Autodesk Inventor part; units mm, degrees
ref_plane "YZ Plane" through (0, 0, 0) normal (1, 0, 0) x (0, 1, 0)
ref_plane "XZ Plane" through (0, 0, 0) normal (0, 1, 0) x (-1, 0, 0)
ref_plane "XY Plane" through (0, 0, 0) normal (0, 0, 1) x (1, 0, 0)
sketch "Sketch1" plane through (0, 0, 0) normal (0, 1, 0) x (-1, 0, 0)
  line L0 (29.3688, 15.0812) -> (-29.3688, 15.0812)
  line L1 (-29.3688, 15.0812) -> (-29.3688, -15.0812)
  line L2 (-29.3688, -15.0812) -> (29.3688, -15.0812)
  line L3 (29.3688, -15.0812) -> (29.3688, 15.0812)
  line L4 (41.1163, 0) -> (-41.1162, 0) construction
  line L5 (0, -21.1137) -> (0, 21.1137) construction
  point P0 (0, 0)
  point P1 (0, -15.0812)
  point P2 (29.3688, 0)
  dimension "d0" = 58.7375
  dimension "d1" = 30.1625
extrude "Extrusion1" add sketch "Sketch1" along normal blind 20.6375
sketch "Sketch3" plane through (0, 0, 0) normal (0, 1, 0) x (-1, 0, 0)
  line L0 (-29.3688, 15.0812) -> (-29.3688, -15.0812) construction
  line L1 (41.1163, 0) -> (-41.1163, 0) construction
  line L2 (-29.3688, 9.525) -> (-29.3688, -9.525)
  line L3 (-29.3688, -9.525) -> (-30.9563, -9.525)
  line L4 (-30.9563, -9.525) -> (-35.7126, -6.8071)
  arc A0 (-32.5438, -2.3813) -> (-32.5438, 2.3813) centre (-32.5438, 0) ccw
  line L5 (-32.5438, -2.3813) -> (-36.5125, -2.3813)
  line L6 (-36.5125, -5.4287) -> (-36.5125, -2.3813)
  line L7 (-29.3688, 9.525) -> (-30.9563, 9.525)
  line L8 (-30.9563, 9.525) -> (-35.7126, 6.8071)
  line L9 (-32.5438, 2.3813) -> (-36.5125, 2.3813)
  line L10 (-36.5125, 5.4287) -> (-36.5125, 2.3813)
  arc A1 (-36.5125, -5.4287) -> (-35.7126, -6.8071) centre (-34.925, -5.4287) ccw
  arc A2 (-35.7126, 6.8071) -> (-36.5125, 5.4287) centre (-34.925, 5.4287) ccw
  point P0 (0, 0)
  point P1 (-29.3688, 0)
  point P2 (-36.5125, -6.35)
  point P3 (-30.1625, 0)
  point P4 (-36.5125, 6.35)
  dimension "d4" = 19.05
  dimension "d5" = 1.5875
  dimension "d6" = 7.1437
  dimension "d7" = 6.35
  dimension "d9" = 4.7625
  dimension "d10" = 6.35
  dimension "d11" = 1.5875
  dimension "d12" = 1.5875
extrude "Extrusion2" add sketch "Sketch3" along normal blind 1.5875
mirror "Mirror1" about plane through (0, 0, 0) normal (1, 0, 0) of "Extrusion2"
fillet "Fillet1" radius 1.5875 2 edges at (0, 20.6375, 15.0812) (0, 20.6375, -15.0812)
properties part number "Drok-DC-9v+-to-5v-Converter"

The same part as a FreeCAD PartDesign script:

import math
import FreeCAD as App
import Part
import Sketcher

V = App.Vector
Q = App.Units.Quantity


def edges_at(feature, points):
    """Names of the edges that pass closest to the given points."""
    edges = feature.Shape.Edges
    near = lambda p: min(range(len(edges)), key=lambda i: edges[i].distToShape(Part.Vertex(*p))[0])
    return sorted({f"Edge{near(p) + 1}" for p in points})


def add_polygon(sketch, points):
    """Adds a closed chain of lines whose ends are joined by coincident constraints."""
    first, n = sketch.GeometryCount, len(points)
    for a, b in zip(points, points[1:] + points[:1]):
        sketch.addGeometry(Part.LineSegment(App.Vector(*a, 0), App.Vector(*b, 0)), False)
    for i in range(n):
        sketch.addConstraint(Sketcher.Constraint("Coincident", first + i, 2, first + (i + 1) % n, 1))

doc = App.newDocument("Part")
body = doc.addObject("PartDesign::Body", "Body")

# Sketch on XZ plane
sketch1 = doc.addObject("Sketcher::SketchObject", "Sketch")
body.addObject(sketch1)
sketch1.AttachmentSupport = (doc.XZ_Plane, [""])
sketch1.MapMode = "FlatFace"
add_polygon(sketch1, [(-29, -15), (-29, 15), (29, 15), (29, -15)])  # lines 0-3
sketch1.addConstraint(Sketcher.Constraint("Vertical", 0))
sketch1.addConstraint(Sketcher.Constraint("Horizontal", 1))
sketch1.addConstraint(Sketcher.Constraint("Vertical", 2))
sketch1.addConstraint(Sketcher.Constraint("Horizontal", 3))
sketch1.addConstraint(Sketcher.Constraint("Symmetric", 0, 2, 2, 2, -1, 1))
sketch1.addConstraint(Sketcher.Constraint("DistanceX", 1, 1, 1, 2, Q("2.3125 in")))
sketch1.addConstraint(Sketcher.Constraint("DistanceY", 0, 1, 0, 2, Q("1.1875 in")))
pad1 = doc.addObject("PartDesign::Pad", "Pad")
body.addObject(pad1)
pad1.Profile = sketch1
pad1.Length = Q("0.8125 in")
pad1.Reversed = True

# Sketch on XZ plane
sketch2 = doc.addObject("Sketcher::SketchObject", "Sketch001")
body.addObject(sketch2)
sketch2.AttachmentSupport = (doc.XZ_Plane, [""])
sketch2.MapMode = "FlatFace"
sketch2.addGeometry(Part.LineSegment(V(29.4, -9.5, 0), V(29.4, 9.5, 0)), False)
sketch2.addGeometry(Part.LineSegment(V(29.4, 9.5, 0), V(31, 9.5, 0)), False)
sketch2.addGeometry(Part.LineSegment(V(31, 9.5, 0), V(35.7, 6.8, 0)), False)
sketch2.addGeometry(Part.ArcOfCircle(Part.Circle(V(34.9, 5.4, 0), V(0, 0, 1), 1.6), math.radians(0), math.radians(60)), False)
sketch2.addGeometry(Part.LineSegment(V(36.5, 5.4, 0), V(36.5, 2.4, 0)), False)
sketch2.addGeometry(Part.LineSegment(V(36.5, 2.4, 0), V(32.5, 2.4, 0)), False)
sketch2.addGeometry(Part.ArcOfCircle(Part.Circle(V(32.5, 0, 0), V(0, 0, 1), 2.4), math.radians(90), math.radians(270)), False)
sketch2.addGeometry(Part.LineSegment(V(32.5, -2.4, 0), V(36.5, -2.4, 0)), False)
sketch2.addGeometry(Part.LineSegment(V(36.5, -2.4, 0), V(36.5, -5.4, 0)), False)
sketch2.addGeometry(Part.ArcOfCircle(Part.Circle(V(34.9, -5.4, 0), V(0, 0, 1), 1.6), math.radians(-60), math.radians(0)), False)
sketch2.addGeometry(Part.LineSegment(V(35.7, -6.8, 0), V(31, -9.5, 0)), False)
sketch2.addGeometry(Part.LineSegment(V(31, -9.5, 0), V(29.4, -9.5, 0)), False)
sketch2.addConstraint(Sketcher.Constraint("Coincident", 0, 2, 1, 1))
sketch2.addConstraint(Sketcher.Constraint("Coincident", 1, 2, 2, 1))
sketch2.addConstraint(Sketcher.Constraint("Tangent", 2, 2, 3, 2))
sketch2.addConstraint(Sketcher.Constraint("Tangent", 3, 1, 4, 1))
sketch2.addConstraint(Sketcher.Constraint("Coincident", 4, 2, 5, 1))
sketch2.addConstraint(Sketcher.Constraint("Tangent", 5, 2, 6, 1))
sketch2.addConstraint(Sketcher.Constraint("Tangent", 6, 2, 7, 1))
sketch2.addConstraint(Sketcher.Constraint("Coincident", 7, 2, 8, 1))
sketch2.addConstraint(Sketcher.Constraint("Tangent", 8, 2, 9, 2))
sketch2.addConstraint(Sketcher.Constraint("Tangent", 9, 1, 10, 1))
sketch2.addConstraint(Sketcher.Constraint("Coincident", 10, 2, 11, 1))
sketch2.addConstraint(Sketcher.Constraint("Coincident", 11, 2, 0, 1))
sketch2.addConstraint(Sketcher.Constraint("Vertical", 0))
sketch2.addConstraint(Sketcher.Constraint("Horizontal", 1))
sketch2.addConstraint(Sketcher.Constraint("Vertical", 4))
sketch2.addConstraint(Sketcher.Constraint("Horizontal", 5))
sketch2.addConstraint(Sketcher.Constraint("Horizontal", 7))
sketch2.addConstraint(Sketcher.Constraint("Vertical", 8))
sketch2.addConstraint(Sketcher.Constraint("Horizontal", 11))
sketch2.addConstraint(Sketcher.Constraint("Equal", 3, 9))
sketch2.addConstraint(Sketcher.Constraint("Symmetric", 3, 3, 9, 3, -1))
sketch2.addConstraint(Sketcher.Constraint("Symmetric", 1, 2, 10, 2, -1))
sketch2.addConstraint(Sketcher.Constraint("PointOnObject", 6, 3, -1))
sketch2.addConstraint(Sketcher.Constraint("Radius", 3, Q("0.0625 in")))
sketch2.addConstraint(Sketcher.Constraint("Radius", 6, Q("0.093752 in")))
sketch2.addConstraint(Sketcher.Constraint("DistanceY", 0, 1, 0, 2, Q("0.75 in")))
sketch2.addConstraint(Sketcher.Constraint("DistanceX", 1, 1, 1, 2, Q("0.0625 in")))
sketch2.addConstraint(Sketcher.Constraint("DistanceX", 1, 2, 6, 3, Q("0.0625 in")))
sketch2.addConstraint(Sketcher.Constraint("DistanceX", 0, 2, 3, 1, Q("0.281248 in")))
sketch2.addConstraint(Sketcher.Constraint("DistanceX", -1, 1, 3, 3, Q("1.375 in")))
sketch2.addConstraint(Sketcher.Constraint("DistanceX", -1, 1, 2, 2, Q("1.406 in")))
pad2 = doc.addObject("PartDesign::Pad", "Pad001")
body.addObject(pad2)
pad2.Profile = sketch2
pad2.Length = Q("0.0625 in")
pad2.Reversed = True
doc.recompute()

mirrored = doc.addObject("PartDesign::Mirrored", "Mirrored")
body.addObject(mirrored)
mirrored.Originals = [pad2]
mirrored.MirrorPlane = (doc.YZ_Plane, [""])
body.Tip = mirrored
doc.recompute()

fillet = doc.addObject("PartDesign::Fillet", "Fillet")
body.addObject(fillet)
fillet.Base = (mirrored, edges_at(mirrored, [(0, 20.637, 15.081), (0, 20.637, -15.081)]))
fillet.Radius = Q("0.0625 in")

doc.recompute()
